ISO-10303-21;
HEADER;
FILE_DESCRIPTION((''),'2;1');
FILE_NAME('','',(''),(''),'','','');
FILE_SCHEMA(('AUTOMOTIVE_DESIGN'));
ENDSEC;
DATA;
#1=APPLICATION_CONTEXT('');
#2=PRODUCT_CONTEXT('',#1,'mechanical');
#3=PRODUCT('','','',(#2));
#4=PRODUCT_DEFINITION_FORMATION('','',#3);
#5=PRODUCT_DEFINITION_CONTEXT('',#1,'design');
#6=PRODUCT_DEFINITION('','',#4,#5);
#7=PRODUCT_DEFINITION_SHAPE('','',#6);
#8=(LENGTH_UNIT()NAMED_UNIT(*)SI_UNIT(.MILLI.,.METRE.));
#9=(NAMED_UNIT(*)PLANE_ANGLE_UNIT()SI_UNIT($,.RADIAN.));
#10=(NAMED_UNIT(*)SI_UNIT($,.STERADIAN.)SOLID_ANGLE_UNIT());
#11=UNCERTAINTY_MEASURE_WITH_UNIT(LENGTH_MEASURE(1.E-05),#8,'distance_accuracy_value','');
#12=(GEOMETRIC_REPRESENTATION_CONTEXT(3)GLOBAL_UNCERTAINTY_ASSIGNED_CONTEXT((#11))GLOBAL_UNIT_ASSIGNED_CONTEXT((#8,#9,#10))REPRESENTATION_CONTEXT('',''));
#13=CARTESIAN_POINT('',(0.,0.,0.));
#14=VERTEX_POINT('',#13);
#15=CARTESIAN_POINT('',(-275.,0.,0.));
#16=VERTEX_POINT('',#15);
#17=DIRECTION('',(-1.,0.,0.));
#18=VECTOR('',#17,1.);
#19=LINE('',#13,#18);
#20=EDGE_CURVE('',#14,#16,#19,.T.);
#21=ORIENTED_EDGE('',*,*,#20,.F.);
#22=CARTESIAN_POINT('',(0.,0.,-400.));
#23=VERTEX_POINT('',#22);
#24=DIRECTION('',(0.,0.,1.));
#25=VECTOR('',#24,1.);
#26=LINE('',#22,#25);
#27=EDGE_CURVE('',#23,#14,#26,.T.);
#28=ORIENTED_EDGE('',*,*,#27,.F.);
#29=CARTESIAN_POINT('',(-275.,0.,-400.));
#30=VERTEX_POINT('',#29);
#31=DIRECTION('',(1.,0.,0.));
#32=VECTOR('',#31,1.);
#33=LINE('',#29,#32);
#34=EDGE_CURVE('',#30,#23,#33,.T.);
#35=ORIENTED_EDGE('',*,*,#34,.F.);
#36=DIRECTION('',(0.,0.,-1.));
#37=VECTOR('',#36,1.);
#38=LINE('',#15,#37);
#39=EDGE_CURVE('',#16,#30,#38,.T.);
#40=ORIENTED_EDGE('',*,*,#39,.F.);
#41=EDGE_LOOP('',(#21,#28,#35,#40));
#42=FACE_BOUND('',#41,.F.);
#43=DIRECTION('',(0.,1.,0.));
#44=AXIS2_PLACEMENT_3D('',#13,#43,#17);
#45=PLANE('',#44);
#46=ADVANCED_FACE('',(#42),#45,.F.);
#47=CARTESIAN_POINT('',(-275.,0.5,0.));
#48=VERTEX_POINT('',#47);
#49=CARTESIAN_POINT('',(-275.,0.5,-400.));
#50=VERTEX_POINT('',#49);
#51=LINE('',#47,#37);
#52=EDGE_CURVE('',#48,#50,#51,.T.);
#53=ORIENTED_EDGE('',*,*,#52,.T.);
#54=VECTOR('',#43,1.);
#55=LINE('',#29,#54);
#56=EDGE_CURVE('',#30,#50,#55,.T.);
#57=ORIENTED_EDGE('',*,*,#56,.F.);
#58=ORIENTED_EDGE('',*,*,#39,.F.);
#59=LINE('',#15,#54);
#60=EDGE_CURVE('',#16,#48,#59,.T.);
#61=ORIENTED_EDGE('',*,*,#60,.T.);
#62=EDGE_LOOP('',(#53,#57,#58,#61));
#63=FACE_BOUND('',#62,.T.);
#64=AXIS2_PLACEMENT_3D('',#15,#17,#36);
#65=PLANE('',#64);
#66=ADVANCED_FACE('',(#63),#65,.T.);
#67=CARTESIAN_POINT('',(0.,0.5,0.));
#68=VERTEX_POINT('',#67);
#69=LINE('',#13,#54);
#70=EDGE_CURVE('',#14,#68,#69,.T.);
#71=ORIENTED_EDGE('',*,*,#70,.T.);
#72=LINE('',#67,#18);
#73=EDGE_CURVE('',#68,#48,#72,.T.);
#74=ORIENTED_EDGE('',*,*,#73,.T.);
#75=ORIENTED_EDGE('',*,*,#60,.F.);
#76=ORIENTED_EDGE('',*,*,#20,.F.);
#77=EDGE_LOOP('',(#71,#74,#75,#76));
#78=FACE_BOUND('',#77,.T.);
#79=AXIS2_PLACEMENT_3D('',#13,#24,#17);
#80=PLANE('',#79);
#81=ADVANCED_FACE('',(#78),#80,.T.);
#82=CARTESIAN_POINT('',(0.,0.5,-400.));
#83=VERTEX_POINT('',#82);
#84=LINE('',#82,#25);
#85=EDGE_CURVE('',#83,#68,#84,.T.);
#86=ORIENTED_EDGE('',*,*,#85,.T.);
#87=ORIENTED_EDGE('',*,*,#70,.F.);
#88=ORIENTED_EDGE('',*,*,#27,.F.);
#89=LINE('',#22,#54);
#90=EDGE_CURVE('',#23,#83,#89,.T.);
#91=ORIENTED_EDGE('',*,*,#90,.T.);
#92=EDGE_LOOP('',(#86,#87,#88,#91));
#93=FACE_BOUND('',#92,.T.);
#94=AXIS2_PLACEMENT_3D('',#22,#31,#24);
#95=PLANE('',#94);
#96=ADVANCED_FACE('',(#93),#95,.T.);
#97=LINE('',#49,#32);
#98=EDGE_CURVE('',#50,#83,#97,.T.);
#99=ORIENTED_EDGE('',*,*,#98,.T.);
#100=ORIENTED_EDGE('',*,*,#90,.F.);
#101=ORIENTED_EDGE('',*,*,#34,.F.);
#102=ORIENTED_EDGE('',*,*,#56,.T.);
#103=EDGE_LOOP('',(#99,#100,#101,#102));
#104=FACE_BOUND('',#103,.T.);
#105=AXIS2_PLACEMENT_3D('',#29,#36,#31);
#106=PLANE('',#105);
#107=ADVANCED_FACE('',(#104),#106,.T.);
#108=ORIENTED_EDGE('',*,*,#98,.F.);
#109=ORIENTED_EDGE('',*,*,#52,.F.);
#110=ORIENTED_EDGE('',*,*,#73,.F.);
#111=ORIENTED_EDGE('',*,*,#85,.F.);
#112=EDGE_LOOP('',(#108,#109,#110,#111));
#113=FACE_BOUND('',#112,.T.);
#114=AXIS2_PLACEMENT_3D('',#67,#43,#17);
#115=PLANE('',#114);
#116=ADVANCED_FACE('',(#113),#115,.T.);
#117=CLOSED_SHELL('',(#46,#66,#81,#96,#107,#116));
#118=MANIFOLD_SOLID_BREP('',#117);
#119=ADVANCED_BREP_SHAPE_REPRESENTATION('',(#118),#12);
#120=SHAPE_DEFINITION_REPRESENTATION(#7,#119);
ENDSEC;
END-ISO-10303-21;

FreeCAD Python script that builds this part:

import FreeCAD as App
import Part
import Sketcher
from FreeCAD import Vector


def add_polygon(sketch, points):
    """Adds a closed chain of lines whose ends are joined by coincident constraints."""
    first, n = sketch.GeometryCount, len(points)
    for a, b in zip(points, points[1:] + points[:1]):
        sketch.addGeometry(Part.LineSegment(App.Vector(*a, 0), App.Vector(*b, 0)), False)
    for i in range(n):
        sketch.addConstraint(Sketcher.Constraint("Coincident", first + i, 2, first + (i + 1) % n, 1))

doc = App.newDocument("Part")
body = doc.addObject("PartDesign::Body", "Body")

# Sketch on XZ plane
sketch1 = body.newObject("Sketcher::SketchObject", "Sketch")
sketch1.AttachmentSupport = (doc.getObject("XZ_Plane"), [""])
sketch1.MapMode = "FlatFace"
add_polygon(sketch1, [(-275, 0), (0, 0), (0, -400), (-275, -400)])  # lines 0-3
sketch1.addConstraint([
    Sketcher.Constraint("Horizontal", 0),
    Sketcher.Constraint("Vertical", 1),
    Sketcher.Constraint("Horizontal", 2),
    Sketcher.Constraint("Vertical", 3),
    Sketcher.Constraint("Coincident", 0, 2, -1, 1),
    Sketcher.Constraint("DistanceX", 0, 1, 0, 2, 275.0),
    Sketcher.Constraint("DistanceY", 1, 2, 1, 1, 400.0),
])
pad1 = body.newObject("PartDesign::Pad", "Pad")
pad1.Profile = sketch1
pad1.Length = 0.5
pad1.Reversed = True

doc.recompute()
